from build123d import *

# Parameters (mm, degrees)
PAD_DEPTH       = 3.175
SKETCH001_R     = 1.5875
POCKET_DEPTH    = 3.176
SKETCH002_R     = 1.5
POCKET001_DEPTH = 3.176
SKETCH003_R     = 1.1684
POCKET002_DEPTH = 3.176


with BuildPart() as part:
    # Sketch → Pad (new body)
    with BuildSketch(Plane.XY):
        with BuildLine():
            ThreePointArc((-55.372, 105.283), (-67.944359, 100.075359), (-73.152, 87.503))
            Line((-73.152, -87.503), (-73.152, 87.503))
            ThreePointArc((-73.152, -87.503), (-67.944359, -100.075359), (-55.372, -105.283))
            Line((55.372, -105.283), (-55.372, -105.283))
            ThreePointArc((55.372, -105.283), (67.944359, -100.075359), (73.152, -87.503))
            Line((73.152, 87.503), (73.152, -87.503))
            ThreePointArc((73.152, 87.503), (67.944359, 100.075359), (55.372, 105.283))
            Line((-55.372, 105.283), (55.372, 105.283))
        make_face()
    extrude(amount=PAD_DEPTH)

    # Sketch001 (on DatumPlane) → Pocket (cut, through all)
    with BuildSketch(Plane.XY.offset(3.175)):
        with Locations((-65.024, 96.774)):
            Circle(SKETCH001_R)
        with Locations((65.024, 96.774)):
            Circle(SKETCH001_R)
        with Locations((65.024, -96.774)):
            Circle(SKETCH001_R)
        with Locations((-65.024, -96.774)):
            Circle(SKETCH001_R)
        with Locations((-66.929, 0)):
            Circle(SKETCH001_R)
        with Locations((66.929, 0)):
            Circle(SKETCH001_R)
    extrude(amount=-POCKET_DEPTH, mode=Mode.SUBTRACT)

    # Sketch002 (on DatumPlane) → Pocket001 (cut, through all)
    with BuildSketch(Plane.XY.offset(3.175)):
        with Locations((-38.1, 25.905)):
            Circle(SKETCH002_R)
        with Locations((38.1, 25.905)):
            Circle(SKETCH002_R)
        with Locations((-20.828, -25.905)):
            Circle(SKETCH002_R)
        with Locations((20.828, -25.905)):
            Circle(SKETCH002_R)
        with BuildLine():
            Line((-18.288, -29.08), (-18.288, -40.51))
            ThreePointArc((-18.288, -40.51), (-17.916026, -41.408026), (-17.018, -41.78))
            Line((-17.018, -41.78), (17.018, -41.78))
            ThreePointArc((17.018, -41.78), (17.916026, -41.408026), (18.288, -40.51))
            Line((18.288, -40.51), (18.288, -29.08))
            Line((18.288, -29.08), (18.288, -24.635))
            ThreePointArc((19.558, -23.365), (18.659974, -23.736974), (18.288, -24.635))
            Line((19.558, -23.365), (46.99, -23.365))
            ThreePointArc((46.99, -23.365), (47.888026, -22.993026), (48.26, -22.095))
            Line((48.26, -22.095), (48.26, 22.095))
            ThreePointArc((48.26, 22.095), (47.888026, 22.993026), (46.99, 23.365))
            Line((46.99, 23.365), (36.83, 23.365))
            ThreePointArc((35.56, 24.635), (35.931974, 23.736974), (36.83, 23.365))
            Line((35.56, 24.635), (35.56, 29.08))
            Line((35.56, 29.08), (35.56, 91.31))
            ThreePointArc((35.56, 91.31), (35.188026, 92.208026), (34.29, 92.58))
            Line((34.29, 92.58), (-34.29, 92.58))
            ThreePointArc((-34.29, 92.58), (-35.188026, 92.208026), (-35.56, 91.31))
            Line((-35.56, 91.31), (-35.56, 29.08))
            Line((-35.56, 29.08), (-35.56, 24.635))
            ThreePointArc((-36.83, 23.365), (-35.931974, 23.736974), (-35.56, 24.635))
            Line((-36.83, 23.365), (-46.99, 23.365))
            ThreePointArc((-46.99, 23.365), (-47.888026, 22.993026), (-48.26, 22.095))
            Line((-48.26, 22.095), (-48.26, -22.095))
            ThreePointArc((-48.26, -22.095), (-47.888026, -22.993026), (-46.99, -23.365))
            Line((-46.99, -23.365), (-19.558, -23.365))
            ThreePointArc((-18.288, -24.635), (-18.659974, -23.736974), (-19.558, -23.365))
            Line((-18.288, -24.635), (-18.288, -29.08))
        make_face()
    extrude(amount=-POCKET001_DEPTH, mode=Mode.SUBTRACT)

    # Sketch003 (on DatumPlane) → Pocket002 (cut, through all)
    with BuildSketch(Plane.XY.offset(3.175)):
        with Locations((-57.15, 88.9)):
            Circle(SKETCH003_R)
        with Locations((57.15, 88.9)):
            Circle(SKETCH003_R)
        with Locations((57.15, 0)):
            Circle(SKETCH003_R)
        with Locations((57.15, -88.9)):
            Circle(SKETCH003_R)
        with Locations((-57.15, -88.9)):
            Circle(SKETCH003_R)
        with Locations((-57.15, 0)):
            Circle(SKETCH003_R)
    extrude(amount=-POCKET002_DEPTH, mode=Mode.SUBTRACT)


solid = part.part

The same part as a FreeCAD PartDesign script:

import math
import FreeCAD as App
import Part
import Sketcher
Q = App.Units.Quantity

doc = App.newDocument("Part")
body = doc.addObject("PartDesign::Body", "Body")

# Sketch on XY plane
sketch1 = body.newObject("Sketcher::SketchObject", "Sketch")
sketch1.AttachmentSupport = (doc.getObject("XY_Plane"), [""])
sketch1.MapMode = "FlatFace"
sketch1.addGeometry([
    Part.ArcOfCircle(Part.Circle(App.Vector(-55, 88, 0), App.Vector(0, 0, 1), 18), math.radians(90), math.radians(180)),  # 0
    Part.LineSegment(App.Vector(-73, 88, 0), App.Vector(-73, -88, 0)),  # 1
    Part.ArcOfCircle(Part.Circle(App.Vector(-55, -88, 0), App.Vector(0, 0, 1), 18), math.radians(180), math.radians(270)),  # 2
    Part.LineSegment(App.Vector(-55, -105, 0), App.Vector(55, -105, 0)),  # 3
    Part.ArcOfCircle(Part.Circle(App.Vector(55, -88, 0), App.Vector(0, 0, 1), 18), math.radians(-90), math.radians(0)),  # 4
    Part.LineSegment(App.Vector(73, -88, 0), App.Vector(73, 88, 0)),  # 5
    Part.ArcOfCircle(Part.Circle(App.Vector(55, 88, 0), App.Vector(0, 0, 1), 18), math.radians(0), math.radians(90)),  # 6
    Part.LineSegment(App.Vector(55, 105, 0), App.Vector(-55, 105, 0)),  # 7
], False)
sketch1.addConstraint([
    Sketcher.Constraint("Tangent", 0, 2, 1, 1),
    Sketcher.Constraint("Tangent", 1, 2, 2, 1),
    Sketcher.Constraint("Tangent", 2, 2, 3, 1),
    Sketcher.Constraint("Tangent", 3, 2, 4, 1),
    Sketcher.Constraint("Tangent", 4, 2, 5, 1),
    Sketcher.Constraint("Tangent", 5, 2, 6, 1),
    Sketcher.Constraint("Tangent", 6, 2, 7, 1),
    Sketcher.Constraint("Tangent", 7, 2, 0, 1),
    Sketcher.Constraint("Vertical", 1),
    Sketcher.Constraint("Horizontal", 3),
    Sketcher.Constraint("Vertical", 5),
    Sketcher.Constraint("Horizontal", 7),
    Sketcher.Constraint("Equal", 0, 2),
    Sketcher.Constraint("Equal", 2, 4),
    Sketcher.Constraint("Equal", 4, 6),
    Sketcher.Constraint("Symmetric", 0, 3, 4, 3, -1, 1),
    Sketcher.Constraint("Radius", 0, Q("0.6999999 in")),
    Sketcher.Constraint("DistanceX", 3, 1, 3, 2, Q("4.36 in")),
    Sketcher.Constraint("DistanceY", 1, 2, 1, 1, Q("6.89 in")),
])
pad1 = body.newObject("PartDesign::Pad", "Pad")
pad1.Profile = sketch1
pad1.Length = Q("0.125 in")

# Sketch on XY plane
sketch2 = body.newObject("Sketcher::SketchObject", "Sketch001")
sketch2.AttachmentSupport = (doc.getObject("XY_Plane"), [""])
sketch2.MapMode = "FlatFace"
sketch2.AttachmentOffset = App.Placement(App.Vector(0, 0, 0.125 * 25.4), App.Rotation())
sketch2.addGeometry([
    Part.Circle(App.Vector(-65, 96.8, 0), App.Vector(0, 0, 1), 1.6),  # 0
    Part.Circle(App.Vector(65, 96.8, 0), App.Vector(0, 0, 1), 1.6),  # 1
    Part.Circle(App.Vector(65, -96.8, 0), App.Vector(0, 0, 1), 1.6),  # 2
    Part.Circle(App.Vector(-65, -96.8, 0), App.Vector(0, 0, 1), 1.6),  # 3
    Part.Circle(App.Vector(-66.9, 0, 0), App.Vector(0, 0, 1), 1.6),  # 4
    Part.Circle(App.Vector(66.9, 0, 0), App.Vector(0, 0, 1), 1.6),  # 5
], False)
sketch2.addConstraint([
    Sketcher.Constraint("Equal", 0, 1),
    Sketcher.Constraint("Equal", 1, 2),
    Sketcher.Constraint("Equal", 2, 3),
    Sketcher.Constraint("Equal", 3, 4),
    Sketcher.Constraint("Equal", 4, 5),
    Sketcher.Constraint("Symmetric", 0, 3, 2, 3, -1, 1),
    Sketcher.Constraint("Symmetric", 1, 3, 3, 3, -1, 1),
    Sketcher.Constraint("Symmetric", 4, 3, 5, 3, -1, 1),
    Sketcher.Constraint("Symmetric", 0, 3, 1, 3, -2),
    Sketcher.Constraint("PointOnObject", 4, 3, -1),
    Sketcher.Constraint("Diameter", 0, Q("0.125 in")),
    Sketcher.Constraint("DistanceX", 0, 3, -1, 1, Q("2.56 in")),
    Sketcher.Constraint("DistanceY", -1, 1, 0, 3, Q("3.81 in")),
    Sketcher.Constraint("DistanceX", 4, 3, 5, 3, Q("5.27 in")),
])
pocket1 = body.newObject("PartDesign::Pocket", "Pocket")
pocket1.Profile = sketch2
pocket1.Type = "ThroughAll"

# Sketch on XY plane
sketch3 = body.newObject("Sketcher::SketchObject", "Sketch002")
sketch3.AttachmentSupport = (doc.getObject("XY_Plane"), [""])
sketch3.MapMode = "FlatFace"
sketch3.AttachmentOffset = App.Placement(App.Vector(0, 0, 0.125 * 25.4), App.Rotation())
sketch3.addGeometry([
    Part.Circle(App.Vector(-38.1, 25.9, 0), App.Vector(0, 0, 1), 1.5),  # 0
    Part.Circle(App.Vector(38.1, 25.9, 0), App.Vector(0, 0, 1), 1.5),  # 1
    Part.Circle(App.Vector(-20.8, -25.9, 0), App.Vector(0, 0, 1), 1.5),  # 2
    Part.Circle(App.Vector(20.8, -25.9, 0), App.Vector(0, 0, 1), 1.5),  # 3
    Part.ArcOfCircle(Part.Circle(App.Vector(-17, -40.5, 0), App.Vector(0, 0, 1), 1.3), math.radians(180), math.radians(270)),  # 4
    Part.LineSegment(App.Vector(-17, -41.8, 0), App.Vector(17, -41.8, 0)),  # 5
    Part.ArcOfCircle(Part.Circle(App.Vector(17, -40.5, 0), App.Vector(0, 0, 1), 1.3), math.radians(-90), math.radians(0)),  # 6
    Part.LineSegment(App.Vector(18.3, -40.5, 0), App.Vector(18.3, -24.6, 0)),  # 7
    Part.ArcOfCircle(Part.Circle(App.Vector(19.6, -24.6, 0), App.Vector(0, 0, 1), 1.3), math.radians(90), math.radians(180)),  # 8
    Part.LineSegment(App.Vector(19.6, -23.4, 0), App.Vector(47, -23.4, 0)),  # 9
    Part.ArcOfCircle(Part.Circle(App.Vector(47, -22.1, 0), App.Vector(0, 0, 1), 1.3), math.radians(-90), math.radians(0)),  # 10
    Part.LineSegment(App.Vector(48.3, -22.1, 0), App.Vector(48.3, 22.1, 0)),  # 11
    Part.ArcOfCircle(Part.Circle(App.Vector(47, 22.1, 0), App.Vector(0, 0, 1), 1.3), math.radians(0), math.radians(90)),  # 12
    Part.LineSegment(App.Vector(47, 23.4, 0), App.Vector(36.8, 23.4, 0)),  # 13
    Part.ArcOfCircle(Part.Circle(App.Vector(36.8, 24.6, 0), App.Vector(0, 0, 1), 1.3), math.radians(180), math.radians(270)),  # 14
    Part.LineSegment(App.Vector(35.6, 24.6, 0), App.Vector(35.6, 91.3, 0)),  # 15
    Part.ArcOfCircle(Part.Circle(App.Vector(34.3, 91.3, 0), App.Vector(0, 0, 1), 1.3), math.radians(0), math.radians(90)),  # 16
    Part.LineSegment(App.Vector(34.3, 92.6, 0), App.Vector(-34.3, 92.6, 0)),  # 17
    Part.ArcOfCircle(Part.Circle(App.Vector(-34.3, 91.3, 0), App.Vector(0, 0, 1), 1.3), math.radians(90), math.radians(180)),  # 18
    Part.LineSegment(App.Vector(-35.6, 91.3, 0), App.Vector(-35.6, 24.6, 0)),  # 19
    Part.ArcOfCircle(Part.Circle(App.Vector(-36.8, 24.6, 0), App.Vector(0, 0, 1), 1.3), math.radians(-90), math.radians(0)),  # 20
    Part.LineSegment(App.Vector(-36.8, 23.4, 0), App.Vector(-47, 23.4, 0)),  # 21
    Part.ArcOfCircle(Part.Circle(App.Vector(-47, 22.1, 0), App.Vector(0, 0, 1), 1.3), math.radians(90), math.radians(180)),  # 22
    Part.LineSegment(App.Vector(-48.3, 22.1, 0), App.Vector(-48.3, -22.1, 0)),  # 23
    Part.ArcOfCircle(Part.Circle(App.Vector(-47, -22.1, 0), App.Vector(0, 0, 1), 1.3), math.radians(180), math.radians(270)),  # 24
    Part.LineSegment(App.Vector(-47, -23.4, 0), App.Vector(-19.6, -23.4, 0)),  # 25
    Part.ArcOfCircle(Part.Circle(App.Vector(-19.6, -24.6, 0), App.Vector(0, 0, 1), 1.3), math.radians(0), math.radians(90)),  # 26
    Part.LineSegment(App.Vector(-18.3, -24.6, 0), App.Vector(-18.3, -40.5, 0)),  # 27
], False)
sketch3.addConstraint([
    Sketcher.Constraint("Tangent", 4, 2, 5, 1),
    Sketcher.Constraint("Tangent", 5, 2, 6, 1),
    Sketcher.Constraint("Tangent", 6, 2, 7, 1),
    Sketcher.Constraint("Tangent", 7, 2, 8, 2),
    Sketcher.Constraint("Tangent", 8, 1, 9, 1),
    Sketcher.Constraint("Tangent", 9, 2, 10, 1),
    Sketcher.Constraint("Tangent", 10, 2, 11, 1),
    Sketcher.Constraint("Tangent", 11, 2, 12, 1),
    Sketcher.Constraint("Tangent", 12, 2, 13, 1),
    Sketcher.Constraint("Tangent", 13, 2, 14, 2),
    Sketcher.Constraint("Tangent", 14, 1, 15, 1),
    Sketcher.Constraint("Tangent", 15, 2, 16, 1),
    Sketcher.Constraint("Tangent", 16, 2, 17, 1),
    Sketcher.Constraint("Tangent", 17, 2, 18, 1),
    Sketcher.Constraint("Tangent", 18, 2, 19, 1),
    Sketcher.Constraint("Tangent", 19, 2, 20, 2),
    Sketcher.Constraint("Tangent", 20, 1, 21, 1),
    Sketcher.Constraint("Tangent", 21, 2, 22, 1),
    Sketcher.Constraint("Tangent", 22, 2, 23, 1),
    Sketcher.Constraint("Tangent", 23, 2, 24, 1),
    Sketcher.Constraint("Tangent", 24, 2, 25, 1),
    Sketcher.Constraint("Tangent", 25, 2, 26, 2),
    Sketcher.Constraint("Tangent", 26, 1, 27, 1),
    Sketcher.Constraint("Tangent", 27, 2, 4, 1),
    Sketcher.Constraint("Horizontal", 5),
    Sketcher.Constraint("Vertical", 7),
    Sketcher.Constraint("Horizontal", 9),
    Sketcher.Constraint("Vertical", 11),
    Sketcher.Constraint("Horizontal", 13),
    Sketcher.Constraint("Vertical", 15),
    Sketcher.Constraint("Horizontal", 17),
    Sketcher.Constraint("Vertical", 19),
    Sketcher.Constraint("Horizontal", 21),
    Sketcher.Constraint("Vertical", 23),
    Sketcher.Constraint("Horizontal", 25),
    Sketcher.Constraint("Vertical", 27),
    Sketcher.Constraint("Equal", 0, 1),
    Sketcher.Constraint("Equal", 1, 2),
    Sketcher.Constraint("Equal", 2, 3),
    Sketcher.Constraint("Equal", 4, 6),
    Sketcher.Constraint("Equal", 6, 8),
    Sketcher.Constraint("Equal", 8, 10),
    Sketcher.Constraint("Equal", 10, 12),
    Sketcher.Constraint("Equal", 12, 14),
    Sketcher.Constraint("Equal", 14, 16),
    Sketcher.Constraint("Equal", 16, 18),
    Sketcher.Constraint("Equal", 18, 20),
    Sketcher.Constraint("Equal", 20, 22),
    Sketcher.Constraint("Equal", 22, 24),
    Sketcher.Constraint("Equal", 24, 26),
    Sketcher.Constraint("Symmetric", 10, 3, 22, 3, -1, 1),
    Sketcher.Constraint("Symmetric", 0, 3, 1, 3, -2),
    Sketcher.Constraint("Symmetric", 2, 3, 3, 3, -2),
    Sketcher.Constraint("Symmetric", 14, 3, 20, 3, -2),
    Sketcher.Constraint("Symmetric", 8, 3, 26, 3, -2),
    Sketcher.Constraint("Radius", 4, Q("0.0499999 in")),
    Sketcher.Constraint("DistanceX", 13, 2, 13, 1, Q("0.4 in")),
    Sketcher.Constraint("DistanceX", 17, 2, 17, 1, Q("2.7 in")),
    Sketcher.Constraint("DistanceX", 0, 3, 1, 3, Q("3 in")),
    Sketcher.Constraint("DistanceX", 5, 1, 5, 2, Q("1.34 in")),
    Sketcher.Constraint("DistanceX", 6, 2, 3, 3, Q("0.1 in")),
    Sketcher.Constraint("DistanceY", 3, 3, 8, 1, Q("0.1 in")),
    Sketcher.Constraint("DistanceY", 12, 2, 1, 3, Q("0.1 in")),
    Sketcher.Constraint("Diameter", 0, Q("3 mm")),
    Sketcher.Constraint("DistanceY", 7, 1, 7, 2, Q("0.625 in")),
    Sketcher.Constraint("DistanceY", 15, 1, 15, 2, Q("2.625 in")),
    Sketcher.Constraint("DistanceY", 11, 1, 11, 2, Q("44.19 mm")),
])
pocket2 = body.newObject("PartDesign::Pocket", "Pocket001")
pocket2.Profile = sketch3
pocket2.Type = "ThroughAll"

# Sketch on XY plane
sketch4 = body.newObject("Sketcher::SketchObject", "Sketch003")
sketch4.AttachmentSupport = (doc.getObject("XY_Plane"), [""])
sketch4.MapMode = "FlatFace"
sketch4.AttachmentOffset = App.Placement(App.Vector(0, 0, 0.125 * 25.4), App.Rotation())
sketch4.addGeometry([
    Part.Circle(App.Vector(-57.1, 88.9, 0), App.Vector(0, 0, 1), 1.2),  # 0
    Part.Circle(App.Vector(57.1, 88.9, 0), App.Vector(0, 0, 1), 1.2),  # 1
    Part.Circle(App.Vector(57.1, 0, 0), App.Vector(0, 0, 1), 1.2),  # 2
    Part.Circle(App.Vector(57.1, -88.9, 0), App.Vector(0, 0, 1), 1.2),  # 3
    Part.Circle(App.Vector(-57.1, -88.9, 0), App.Vector(0, 0, 1), 1.2),  # 4
    Part.Circle(App.Vector(-57.1, 0, 0), App.Vector(0, 0, 1), 1.2),  # 5
], False)
sketch4.addConstraint([
    Sketcher.Constraint("Equal", 0, 1),
    Sketcher.Constraint("Equal", 1, 2),
    Sketcher.Constraint("Equal", 2, 3),
    Sketcher.Constraint("Equal", 3, 4),
    Sketcher.Constraint("Equal", 4, 5),
    Sketcher.Constraint("Symmetric", 0, 3, 3, 3, -1, 1),
    Sketcher.Constraint("Symmetric", 1, 3, 4, 3, -1, 1),
    Sketcher.Constraint("Symmetric", 2, 3, 5, 3, -1, 1),
    Sketcher.Constraint("Symmetric", 0, 3, 1, 3, -2),
    Sketcher.Constraint("PointOnObject", 2, 3, -1),
    Sketcher.Constraint("Vertical", 1, 3, 2, 3),
    Sketcher.Constraint("Diameter", 0, Q("0.092 in")),
    Sketcher.Constraint("DistanceY", 3, 3, 1, 3, Q("7 in")),
    Sketcher.Constraint("DistanceX", 0, 3, 1, 3, Q("4.5 in")),
])
pocket3 = body.newObject("PartDesign::Pocket", "Pocket002")
pocket3.Profile = sketch4
pocket3.Type = "ThroughAll"

doc.recompute()
